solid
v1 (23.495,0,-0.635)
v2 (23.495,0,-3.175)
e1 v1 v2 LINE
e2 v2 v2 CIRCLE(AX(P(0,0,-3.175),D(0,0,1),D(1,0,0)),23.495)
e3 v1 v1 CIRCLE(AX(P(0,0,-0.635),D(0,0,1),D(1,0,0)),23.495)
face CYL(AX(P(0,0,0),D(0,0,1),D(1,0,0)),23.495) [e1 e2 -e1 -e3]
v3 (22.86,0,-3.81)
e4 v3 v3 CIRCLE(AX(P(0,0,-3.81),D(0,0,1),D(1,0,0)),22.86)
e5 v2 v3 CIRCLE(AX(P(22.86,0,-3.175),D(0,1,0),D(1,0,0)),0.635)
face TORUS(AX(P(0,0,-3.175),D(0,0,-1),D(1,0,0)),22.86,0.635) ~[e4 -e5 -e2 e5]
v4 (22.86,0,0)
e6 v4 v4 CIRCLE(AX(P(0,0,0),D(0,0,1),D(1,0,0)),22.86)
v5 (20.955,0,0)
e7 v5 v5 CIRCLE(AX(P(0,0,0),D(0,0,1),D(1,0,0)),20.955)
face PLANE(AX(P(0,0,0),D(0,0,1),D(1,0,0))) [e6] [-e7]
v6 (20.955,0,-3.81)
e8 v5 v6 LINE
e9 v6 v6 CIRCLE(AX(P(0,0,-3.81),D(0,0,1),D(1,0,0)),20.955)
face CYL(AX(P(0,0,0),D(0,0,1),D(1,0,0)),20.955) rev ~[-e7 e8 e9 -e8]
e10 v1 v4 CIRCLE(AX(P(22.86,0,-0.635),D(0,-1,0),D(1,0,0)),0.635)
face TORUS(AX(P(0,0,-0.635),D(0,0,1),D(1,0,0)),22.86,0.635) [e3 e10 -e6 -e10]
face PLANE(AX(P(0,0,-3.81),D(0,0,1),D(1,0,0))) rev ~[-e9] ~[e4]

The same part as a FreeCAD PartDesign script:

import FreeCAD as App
import Part
import Sketcher
from FreeCAD import Vector
Q = App.Units.Quantity


def edges_at(feature, points):
    """Names of the edges that pass closest to the given points."""
    edges = feature.Shape.Edges
    near = lambda p: min(range(len(edges)), key=lambda i: edges[i].distToShape(Part.Vertex(*p))[0])
    return sorted({f"Edge{near(p) + 1}" for p in points})

doc = App.newDocument("Part")
body = doc.addObject("PartDesign::Body", "Body")

# Sketch on XY plane
sketch1 = doc.addObject("Sketcher::SketchObject", "Sketch")
body.addObject(sketch1)
sketch1.AttachmentSupport = (doc.XY_Plane, [""])
sketch1.MapMode = "FlatFace"
sketch1.addGeometry(Part.Circle(Vector(0, 0, 0), Vector(0, 0, 1), 23), False)
sketch1.addGeometry(Part.Circle(Vector(0, 0, 0), Vector(0, 0, 1), 21), False)
sketch1.addConstraint(Sketcher.Constraint("Coincident", 0, 3, -1, 1))
sketch1.addConstraint(Sketcher.Constraint("Coincident", 1, 3, -1, 1))
sketch1.addConstraint(Sketcher.Constraint("Diameter", 0, Q("1.85 in")))
sketch1.addConstraint(Sketcher.Constraint("Diameter", 1, Q("1.65 in")))
pad1 = doc.addObject("PartDesign::Pad", "Pad")
body.addObject(pad1)
pad1.Profile = sketch1
pad1.Length = Q("0.15 in")
pad1.Reversed = True
doc.recompute()

fillet = doc.addObject("PartDesign::Fillet", "Fillet")
body.addObject(fillet)
fillet.Base = (pad1, edges_at(pad1, [(-23.495, 0, 0), (-23.495, 0, -3.81)]))
fillet.Radius = Q("0.025 in")

doc.recompute()
